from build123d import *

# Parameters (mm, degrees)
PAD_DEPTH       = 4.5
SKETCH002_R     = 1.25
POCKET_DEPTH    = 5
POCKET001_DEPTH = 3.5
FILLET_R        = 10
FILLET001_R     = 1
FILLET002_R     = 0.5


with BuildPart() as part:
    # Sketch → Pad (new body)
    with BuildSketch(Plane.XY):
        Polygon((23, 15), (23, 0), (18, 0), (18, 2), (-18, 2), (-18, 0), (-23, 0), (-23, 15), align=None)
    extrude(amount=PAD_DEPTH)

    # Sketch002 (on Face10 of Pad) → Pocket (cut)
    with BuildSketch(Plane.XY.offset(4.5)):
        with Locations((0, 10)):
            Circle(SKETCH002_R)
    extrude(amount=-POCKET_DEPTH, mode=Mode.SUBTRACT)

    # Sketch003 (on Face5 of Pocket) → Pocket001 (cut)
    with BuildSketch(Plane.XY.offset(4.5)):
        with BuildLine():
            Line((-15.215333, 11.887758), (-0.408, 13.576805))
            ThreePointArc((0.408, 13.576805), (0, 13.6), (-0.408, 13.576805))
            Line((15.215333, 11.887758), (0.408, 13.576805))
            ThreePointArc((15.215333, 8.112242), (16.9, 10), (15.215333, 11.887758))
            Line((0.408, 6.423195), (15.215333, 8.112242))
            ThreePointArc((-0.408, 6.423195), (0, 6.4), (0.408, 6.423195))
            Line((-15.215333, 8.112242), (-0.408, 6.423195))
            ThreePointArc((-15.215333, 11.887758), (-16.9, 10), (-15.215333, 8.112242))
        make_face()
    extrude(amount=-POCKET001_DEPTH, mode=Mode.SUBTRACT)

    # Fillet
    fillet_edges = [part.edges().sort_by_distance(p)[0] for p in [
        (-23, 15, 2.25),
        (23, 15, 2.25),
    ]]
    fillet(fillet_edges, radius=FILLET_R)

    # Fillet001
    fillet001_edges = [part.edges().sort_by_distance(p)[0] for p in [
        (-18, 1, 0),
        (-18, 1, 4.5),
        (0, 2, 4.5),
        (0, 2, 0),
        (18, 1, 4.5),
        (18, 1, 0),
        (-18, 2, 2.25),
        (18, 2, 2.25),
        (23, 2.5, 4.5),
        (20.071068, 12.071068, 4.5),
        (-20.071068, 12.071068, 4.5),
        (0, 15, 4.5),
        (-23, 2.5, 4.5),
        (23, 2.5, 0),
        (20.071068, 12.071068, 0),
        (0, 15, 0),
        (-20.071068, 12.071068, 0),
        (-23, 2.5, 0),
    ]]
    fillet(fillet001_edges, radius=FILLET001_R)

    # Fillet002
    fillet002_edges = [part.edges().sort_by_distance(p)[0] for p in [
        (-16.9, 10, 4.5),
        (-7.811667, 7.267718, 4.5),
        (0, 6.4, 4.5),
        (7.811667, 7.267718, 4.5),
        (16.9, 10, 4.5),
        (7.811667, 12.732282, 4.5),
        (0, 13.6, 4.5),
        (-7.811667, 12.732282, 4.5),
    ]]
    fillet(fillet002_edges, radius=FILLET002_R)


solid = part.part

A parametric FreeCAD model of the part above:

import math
import FreeCAD as App
import Part
import Sketcher

V = App.Vector


def edges_at(feature, points):
    """Names of the edges that pass closest to the given points."""
    edges = feature.Shape.Edges
    near = lambda p: min(range(len(edges)), key=lambda i: edges[i].distToShape(Part.Vertex(*p))[0])
    return sorted({f"Edge{near(p) + 1}" for p in points})


def add_polygon(sketch, points):
    """Adds a closed chain of lines whose ends are joined by coincident constraints."""
    first, n = sketch.GeometryCount, len(points)
    for a, b in zip(points, points[1:] + points[:1]):
        sketch.addGeometry(Part.LineSegment(App.Vector(*a, 0), App.Vector(*b, 0)), False)
    for i in range(n):
        sketch.addConstraint(Sketcher.Constraint("Coincident", first + i, 2, first + (i + 1) % n, 1))

doc = App.newDocument("Part")
body = doc.addObject("PartDesign::Body", "Body")

sketch1 = doc.addObject("Sketcher::SketchObject", "Sketch")
body.addObject(sketch1)
sketch1.AttachmentSupport = (doc.XY_Plane, [""])
sketch1.MapMode = "FlatFace"
add_polygon(sketch1, [(23, 0), (23, 15), (-23, 15), (-23, 0), (-18, 0), (-18, 2), (18, 2), (18, 0)])
sketch1.addConstraint(Sketcher.Constraint("Vertical", 0))
sketch1.addConstraint(Sketcher.Constraint("Horizontal", 1))
sketch1.addConstraint(Sketcher.Constraint("Vertical", 2))
sketch1.addConstraint(Sketcher.Constraint("Horizontal", 3))
sketch1.addConstraint(Sketcher.Constraint("Vertical", 4))
sketch1.addConstraint(Sketcher.Constraint("Horizontal", 5))
sketch1.addConstraint(Sketcher.Constraint("Vertical", 6))
sketch1.addConstraint(Sketcher.Constraint("Horizontal", 7))
sketch1.addConstraint(Sketcher.Constraint("Symmetric", 3, 2, 6, 2, -1, 1))
sketch1.addConstraint(Sketcher.Constraint("Symmetric", 2, 2, 7, 2, -2))
sketch1.addConstraint(Sketcher.Constraint("DistanceX", 1, 2, 1, 1, 46.0))
sketch1.addConstraint(Sketcher.Constraint("DistanceX", 3, 1, 3, 2, 5.0))
sketch1.addConstraint(Sketcher.Constraint("DistanceY", 0, 1, 0, 2, 15.0))
sketch1.addConstraint(Sketcher.Constraint("DistanceY", 4, 1, 4, 2, 2.0))
pad1 = doc.addObject("PartDesign::Pad", "Pad")
body.addObject(pad1)
pad1.Profile = sketch1
pad1.Length = 4.5

sketch2 = doc.addObject("Sketcher::SketchObject", "Sketch001")
body.addObject(sketch2)
sketch2.AttachmentSupport = (doc.XY_Plane, [""])
sketch2.MapMode = "FlatFace"
sketch2.AttachmentOffset = App.Placement(V(0, 0, 4.5), App.Rotation())
sketch2.addGeometry(Part.Circle(V(0, 10, 0), V(0, 0, 1), 1.2), False)
sketch2.addConstraint(Sketcher.Constraint("PointOnObject", 0, 3, -2))
sketch2.addConstraint(Sketcher.Constraint("Diameter", 0, 2.5))
sketch2.addConstraint(Sketcher.Constraint("DistanceY", -1, 1, 0, 3, 10.0))
pocket1 = doc.addObject("PartDesign::Pocket", "Pocket")
body.addObject(pocket1)
pocket1.Profile = sketch2
pocket1.Length = 5

sketch3 = doc.addObject("Sketcher::SketchObject", "Sketch002")
body.addObject(sketch3)
sketch3.AttachmentSupport = (doc.XY_Plane, [""])
sketch3.MapMode = "FlatFace"
sketch3.AttachmentOffset = App.Placement(V(0, 0, 4.5), App.Rotation())
sketch3.addGeometry(Part.LineSegment(V(-0.408, 13.576805, 0), V(-15.215333, 11.887758, 0)), False)
sketch3.addGeometry(Part.ArcOfCircle(Part.Circle(V(-15, 10, 0), V(0, 0, 1), 1.9), math.radians(96.507482), math.radians(263.492518)), False)
sketch3.addGeometry(Part.LineSegment(V(-15.215333, 8.112242, 0), V(-0.408, 6.423195, 0)), False)
sketch3.addGeometry(Part.ArcOfCircle(Part.Circle(V(0, 9.999957, 0), V(0, 0, 1), 3.599957), math.radians(-96.507582), math.radians(-83.492418)), False)
sketch3.addGeometry(Part.LineSegment(V(0.408, 6.423195, 0), V(15.215333, 8.112242, 0)), False)
sketch3.addGeometry(Part.ArcOfCircle(Part.Circle(V(15, 10, 0), V(0, 0, 1), 1.9), math.radians(-83.492518), math.radians(83.492518)), False)
sketch3.addGeometry(Part.LineSegment(V(15.215333, 11.887758, 0), V(0.408, 13.576805, 0)), False)
sketch3.addGeometry(Part.ArcOfCircle(Part.Circle(V(0, 10.000043, 0), V(0, 0, 1), 3.599957), math.radians(83.492418), math.radians(96.507582)), False)
sketch3.addConstraint(Sketcher.Constraint("Coincident", 0, 2, 1, 1))
sketch3.addConstraint(Sketcher.Constraint("Coincident", 1, 2, 2, 1))
sketch3.addConstraint(Sketcher.Constraint("Coincident", 2, 2, 3, 1))
sketch3.addConstraint(Sketcher.Constraint("Coincident", 3, 2, 4, 1))
sketch3.addConstraint(Sketcher.Constraint("Coincident", 4, 2, 5, 1))
sketch3.addConstraint(Sketcher.Constraint("Coincident", 5, 2, 6, 1))
sketch3.addConstraint(Sketcher.Constraint("Coincident", 6, 2, 7, 1))
sketch3.addConstraint(Sketcher.Constraint("Coincident", 7, 2, 0, 1))
sketch3.addConstraint(Sketcher.Constraint("PointOnObject", 3, 3, -2))
sketch3.addConstraint(Sketcher.Constraint("PointOnObject", 7, 3, -2))
sketch3.addConstraint(Sketcher.Constraint("Radius", 1, 1.9))
sketch3.addConstraint(Sketcher.Constraint("Radius", 5, 1.9))
sketch3.addConstraint(Sketcher.Constraint("DistanceX", 1, 3, -1, 1, 15.0))
sketch3.addConstraint(Sketcher.Constraint("DistanceY", -1, 1, 1, 3, 10.0))
sketch3.addConstraint(Sketcher.Constraint("DistanceX", -1, 1, 5, 3, 15.0))
sketch3.addConstraint(Sketcher.Constraint("DistanceY", -1, 1, 5, 3, 10.0))
sketch3.addConstraint(Sketcher.Constraint("DistanceX", 2, 2, -1, 1, 0.408))
sketch3.addConstraint(Sketcher.Constraint("DistanceX", -1, 1, 3, 2, 0.408))
sketch3.addConstraint(Sketcher.Constraint("DistanceX", -1, 1, 6, 2, 0.408))
sketch3.addConstraint(Sketcher.Constraint("DistanceX", 7, 2, -1, 1, 0.408))
sketch3.addConstraint(Sketcher.Constraint("Radius", 3, 3.599957))
sketch3.addConstraint(Sketcher.Constraint("Radius", 7, 3.599957))
sketch3.addConstraint(Sketcher.Constraint("DistanceY", 3, 3, 0, 2, 1.887801))
sketch3.addConstraint(Sketcher.Constraint("DistanceY", 1, 2, 7, 3, 1.887801))
sketch3.addConstraint(Sketcher.Constraint("DistanceY", 4, 2, 7, 3, 1.887801))
sketch3.addConstraint(Sketcher.Constraint("DistanceY", 3, 3, 5, 2, 1.887801))
sketch3.addConstraint(Sketcher.Constraint("DistanceY", -1, 1, 1, 2, 8.112242))
sketch3.addConstraint(Sketcher.Constraint("DistanceY", -1, 1, 5, 2, 11.887758))
pocket2 = doc.addObject("PartDesign::Pocket", "Pocket001")
body.addObject(pocket2)
pocket2.Profile = sketch3
pocket2.Length = 3.5
doc.recompute()

fillet = doc.addObject("PartDesign::Fillet", "Fillet")
body.addObject(fillet)
fillet.Base = (pocket2, edges_at(pocket2, [(-23, 15, 2.25), (23, 15, 2.25)]))
fillet.Radius = 10
doc.recompute()

fillet2 = doc.addObject("PartDesign::Fillet", "Fillet001")
body.addObject(fillet2)
fillet2.Base = (fillet, edges_at(fillet, [
    (-18, 1, 0),
    (-18, 1, 4.5),
    (0, 2, 4.5),
    (0, 2, 0),
    (18, 1, 4.5),
    (18, 1, 0),
    (-18, 2, 2.25),
    (18, 2, 2.25),
    (23, 2.5, 4.5),
    (20.071, 12.071, 4.5),
    (-20.071, 12.071, 4.5),
    (0, 15, 4.5),
    (-23, 2.5, 4.5),
    (23, 2.5, 0),
    (20.071, 12.071, 0),
    (0, 15, 0),
    (-20.071, 12.071, 0),
    (-23, 2.5, 0),
]))
fillet2.Radius = 1
doc.recompute()

fillet3 = doc.addObject("PartDesign::Fillet", "Fillet002")
body.addObject(fillet3)
fillet3.Base = (fillet2, edges_at(fillet2, [
    (-16.9, 10, 4.5),
    (-7.812, 7.268, 4.5),
    (0, 6.4, 4.5),
    (7.812, 7.268, 4.5),
    (16.9, 10, 4.5),
    (7.812, 12.732, 4.5),
    (0, 13.6, 4.5),
    (-7.812, 12.732, 4.5),
]))
fillet3.Radius = 0.5

doc.recompute()
